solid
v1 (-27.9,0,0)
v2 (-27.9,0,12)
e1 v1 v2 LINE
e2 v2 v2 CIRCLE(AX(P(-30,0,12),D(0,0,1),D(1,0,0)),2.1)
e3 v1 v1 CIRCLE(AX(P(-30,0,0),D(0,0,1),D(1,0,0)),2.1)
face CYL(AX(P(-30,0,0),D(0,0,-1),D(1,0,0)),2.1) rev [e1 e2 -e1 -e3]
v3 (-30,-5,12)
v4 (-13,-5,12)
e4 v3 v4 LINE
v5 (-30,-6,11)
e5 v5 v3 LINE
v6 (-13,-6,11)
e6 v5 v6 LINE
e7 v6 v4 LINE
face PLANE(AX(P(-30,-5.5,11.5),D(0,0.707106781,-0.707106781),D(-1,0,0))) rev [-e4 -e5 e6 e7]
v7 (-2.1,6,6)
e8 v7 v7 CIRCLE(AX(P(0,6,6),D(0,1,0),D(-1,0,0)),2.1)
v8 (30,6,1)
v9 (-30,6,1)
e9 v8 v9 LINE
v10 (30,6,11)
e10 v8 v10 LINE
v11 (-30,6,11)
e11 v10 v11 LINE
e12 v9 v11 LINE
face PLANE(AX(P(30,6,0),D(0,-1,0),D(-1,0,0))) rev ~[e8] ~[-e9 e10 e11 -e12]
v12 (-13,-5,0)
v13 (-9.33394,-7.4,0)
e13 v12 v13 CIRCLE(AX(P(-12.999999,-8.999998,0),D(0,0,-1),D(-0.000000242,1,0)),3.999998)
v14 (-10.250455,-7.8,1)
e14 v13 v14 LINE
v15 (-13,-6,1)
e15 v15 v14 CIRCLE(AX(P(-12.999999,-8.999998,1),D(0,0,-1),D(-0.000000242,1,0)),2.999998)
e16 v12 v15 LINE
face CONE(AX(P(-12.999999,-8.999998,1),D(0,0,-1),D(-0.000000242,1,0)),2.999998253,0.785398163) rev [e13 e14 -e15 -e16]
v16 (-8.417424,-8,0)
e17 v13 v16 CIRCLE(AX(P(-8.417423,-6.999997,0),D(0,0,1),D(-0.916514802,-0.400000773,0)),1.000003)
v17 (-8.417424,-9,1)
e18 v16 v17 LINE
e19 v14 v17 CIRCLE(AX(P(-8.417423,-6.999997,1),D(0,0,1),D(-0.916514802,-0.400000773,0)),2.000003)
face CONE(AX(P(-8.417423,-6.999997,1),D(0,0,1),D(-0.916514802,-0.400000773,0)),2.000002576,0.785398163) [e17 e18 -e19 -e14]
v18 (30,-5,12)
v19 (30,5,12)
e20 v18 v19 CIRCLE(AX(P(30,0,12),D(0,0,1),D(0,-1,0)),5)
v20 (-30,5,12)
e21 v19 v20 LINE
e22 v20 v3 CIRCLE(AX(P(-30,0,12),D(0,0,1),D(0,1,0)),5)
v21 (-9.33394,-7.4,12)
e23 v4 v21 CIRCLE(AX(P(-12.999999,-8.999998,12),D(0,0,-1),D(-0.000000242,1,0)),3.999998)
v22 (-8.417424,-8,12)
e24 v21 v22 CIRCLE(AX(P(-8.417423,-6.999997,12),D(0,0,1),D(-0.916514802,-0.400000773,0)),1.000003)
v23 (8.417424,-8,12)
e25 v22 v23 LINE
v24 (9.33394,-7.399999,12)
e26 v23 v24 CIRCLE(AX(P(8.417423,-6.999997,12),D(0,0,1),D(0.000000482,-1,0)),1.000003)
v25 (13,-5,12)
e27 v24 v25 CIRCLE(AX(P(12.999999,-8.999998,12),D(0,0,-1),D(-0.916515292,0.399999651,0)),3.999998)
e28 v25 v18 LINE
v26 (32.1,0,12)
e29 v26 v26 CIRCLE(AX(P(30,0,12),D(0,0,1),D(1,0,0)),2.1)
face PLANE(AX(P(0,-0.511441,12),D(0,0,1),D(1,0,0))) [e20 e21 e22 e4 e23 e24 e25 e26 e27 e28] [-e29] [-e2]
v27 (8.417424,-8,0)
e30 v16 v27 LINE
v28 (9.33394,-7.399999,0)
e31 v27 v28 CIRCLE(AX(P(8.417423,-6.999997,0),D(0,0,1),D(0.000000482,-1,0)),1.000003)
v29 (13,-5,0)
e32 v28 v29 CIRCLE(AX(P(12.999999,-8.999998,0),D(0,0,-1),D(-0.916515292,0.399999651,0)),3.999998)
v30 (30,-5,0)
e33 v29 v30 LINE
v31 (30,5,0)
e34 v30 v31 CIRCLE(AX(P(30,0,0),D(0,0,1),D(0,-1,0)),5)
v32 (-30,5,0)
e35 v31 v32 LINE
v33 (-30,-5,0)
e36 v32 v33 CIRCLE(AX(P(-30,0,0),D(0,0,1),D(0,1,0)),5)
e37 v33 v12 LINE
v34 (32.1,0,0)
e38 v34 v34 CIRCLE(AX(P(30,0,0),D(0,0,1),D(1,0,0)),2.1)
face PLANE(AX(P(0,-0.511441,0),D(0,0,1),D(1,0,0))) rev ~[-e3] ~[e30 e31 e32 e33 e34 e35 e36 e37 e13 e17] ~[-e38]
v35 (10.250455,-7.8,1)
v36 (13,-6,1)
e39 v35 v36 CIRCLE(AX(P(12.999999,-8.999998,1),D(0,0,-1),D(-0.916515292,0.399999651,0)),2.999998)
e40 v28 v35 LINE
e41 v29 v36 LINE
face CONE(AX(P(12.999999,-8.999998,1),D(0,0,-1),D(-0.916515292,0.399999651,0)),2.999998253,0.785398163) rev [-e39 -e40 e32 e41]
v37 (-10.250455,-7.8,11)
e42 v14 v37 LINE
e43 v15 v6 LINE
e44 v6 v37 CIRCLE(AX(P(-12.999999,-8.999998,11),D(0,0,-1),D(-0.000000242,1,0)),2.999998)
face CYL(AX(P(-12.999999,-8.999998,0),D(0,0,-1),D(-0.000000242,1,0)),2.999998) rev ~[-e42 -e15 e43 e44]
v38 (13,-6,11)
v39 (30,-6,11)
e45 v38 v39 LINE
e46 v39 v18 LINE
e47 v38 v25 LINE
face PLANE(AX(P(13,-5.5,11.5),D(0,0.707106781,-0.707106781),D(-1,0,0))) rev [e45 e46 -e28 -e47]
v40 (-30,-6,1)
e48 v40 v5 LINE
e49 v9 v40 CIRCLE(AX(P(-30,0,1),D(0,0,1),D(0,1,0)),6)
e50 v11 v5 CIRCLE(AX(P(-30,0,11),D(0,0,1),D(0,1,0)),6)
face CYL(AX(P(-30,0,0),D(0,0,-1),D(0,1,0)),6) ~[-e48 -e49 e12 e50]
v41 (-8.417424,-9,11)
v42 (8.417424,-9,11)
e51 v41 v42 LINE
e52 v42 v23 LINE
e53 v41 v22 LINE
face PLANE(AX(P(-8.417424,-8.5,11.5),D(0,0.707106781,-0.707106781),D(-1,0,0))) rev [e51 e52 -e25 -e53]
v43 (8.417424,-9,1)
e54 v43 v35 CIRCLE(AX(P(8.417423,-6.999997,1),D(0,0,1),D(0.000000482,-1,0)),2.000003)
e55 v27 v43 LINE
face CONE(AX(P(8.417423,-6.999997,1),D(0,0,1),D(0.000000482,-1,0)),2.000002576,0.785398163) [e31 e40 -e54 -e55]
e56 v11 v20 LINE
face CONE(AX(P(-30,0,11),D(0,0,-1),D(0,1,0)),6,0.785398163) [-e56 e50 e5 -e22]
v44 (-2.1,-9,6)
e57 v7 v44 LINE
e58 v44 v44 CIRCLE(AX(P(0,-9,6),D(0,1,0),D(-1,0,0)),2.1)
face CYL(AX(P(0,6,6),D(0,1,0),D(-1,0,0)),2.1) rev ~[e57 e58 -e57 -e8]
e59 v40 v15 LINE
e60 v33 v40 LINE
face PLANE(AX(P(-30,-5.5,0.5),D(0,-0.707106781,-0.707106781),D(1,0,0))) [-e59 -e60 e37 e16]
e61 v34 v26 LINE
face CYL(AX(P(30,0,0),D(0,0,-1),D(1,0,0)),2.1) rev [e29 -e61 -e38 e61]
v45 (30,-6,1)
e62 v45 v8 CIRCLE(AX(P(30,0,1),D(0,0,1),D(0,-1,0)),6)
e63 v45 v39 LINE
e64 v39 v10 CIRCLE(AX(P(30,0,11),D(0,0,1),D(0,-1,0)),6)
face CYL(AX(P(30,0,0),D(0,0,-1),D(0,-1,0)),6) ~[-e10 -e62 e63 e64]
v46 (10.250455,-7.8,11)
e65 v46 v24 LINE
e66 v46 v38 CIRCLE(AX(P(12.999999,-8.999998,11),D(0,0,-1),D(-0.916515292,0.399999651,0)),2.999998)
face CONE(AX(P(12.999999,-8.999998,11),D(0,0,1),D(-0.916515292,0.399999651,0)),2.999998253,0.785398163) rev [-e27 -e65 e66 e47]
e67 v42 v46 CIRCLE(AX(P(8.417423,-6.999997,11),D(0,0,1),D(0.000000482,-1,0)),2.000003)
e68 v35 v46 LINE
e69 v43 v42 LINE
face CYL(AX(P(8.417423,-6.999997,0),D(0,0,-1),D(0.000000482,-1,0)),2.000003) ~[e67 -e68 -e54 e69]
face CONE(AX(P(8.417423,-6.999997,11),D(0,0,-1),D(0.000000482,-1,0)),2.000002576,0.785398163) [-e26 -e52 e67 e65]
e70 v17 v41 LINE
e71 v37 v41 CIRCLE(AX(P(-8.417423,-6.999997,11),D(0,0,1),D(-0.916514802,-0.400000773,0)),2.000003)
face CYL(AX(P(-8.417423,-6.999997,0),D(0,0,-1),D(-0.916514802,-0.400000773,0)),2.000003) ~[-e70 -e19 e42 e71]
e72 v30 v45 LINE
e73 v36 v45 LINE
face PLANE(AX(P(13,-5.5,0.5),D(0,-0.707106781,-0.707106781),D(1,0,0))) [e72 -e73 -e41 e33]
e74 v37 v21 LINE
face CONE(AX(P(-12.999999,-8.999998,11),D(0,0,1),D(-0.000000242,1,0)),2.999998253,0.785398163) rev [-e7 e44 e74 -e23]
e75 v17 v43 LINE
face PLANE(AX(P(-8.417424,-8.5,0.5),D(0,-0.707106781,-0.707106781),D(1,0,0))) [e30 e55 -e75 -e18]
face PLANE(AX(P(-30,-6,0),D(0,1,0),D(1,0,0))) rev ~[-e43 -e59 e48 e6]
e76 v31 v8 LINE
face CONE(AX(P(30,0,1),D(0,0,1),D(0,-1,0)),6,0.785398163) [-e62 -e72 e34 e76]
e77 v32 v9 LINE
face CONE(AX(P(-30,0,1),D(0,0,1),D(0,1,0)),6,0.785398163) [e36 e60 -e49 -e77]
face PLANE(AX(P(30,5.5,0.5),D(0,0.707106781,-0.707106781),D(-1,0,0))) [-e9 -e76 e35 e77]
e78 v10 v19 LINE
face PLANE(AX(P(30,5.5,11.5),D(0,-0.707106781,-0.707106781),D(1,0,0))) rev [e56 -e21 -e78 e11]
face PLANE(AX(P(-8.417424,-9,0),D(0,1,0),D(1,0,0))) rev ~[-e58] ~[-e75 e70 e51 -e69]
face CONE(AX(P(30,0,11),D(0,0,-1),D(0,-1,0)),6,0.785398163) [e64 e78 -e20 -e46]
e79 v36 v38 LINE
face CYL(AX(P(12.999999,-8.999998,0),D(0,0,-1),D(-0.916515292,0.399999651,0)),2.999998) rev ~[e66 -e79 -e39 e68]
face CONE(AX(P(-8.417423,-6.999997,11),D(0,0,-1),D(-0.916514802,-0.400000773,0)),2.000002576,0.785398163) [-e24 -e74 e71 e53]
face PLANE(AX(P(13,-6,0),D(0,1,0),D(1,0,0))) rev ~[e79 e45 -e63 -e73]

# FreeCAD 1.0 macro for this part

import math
import FreeCAD as App
import Part
import Sketcher
Q = App.Units.Quantity


def edges_at(feature, points):
    """Names of the edges that pass closest to the given points."""
    edges = feature.Shape.Edges
    near = lambda p: min(range(len(edges)), key=lambda i: edges[i].distToShape(Part.Vertex(*p))[0])
    return sorted({f"Edge{near(p) + 1}" for p in points})

doc = App.newDocument("Part")
body = doc.addObject("PartDesign::Body", "Body")

sketch1 = body.newObject("Sketcher::SketchObject", "Sketch")
sketch1.AttachmentSupport = (doc.getObject("XY_Plane"), [""])
sketch1.MapMode = "FlatFace"
sketch1.addGeometry([
    Part.LineSegment(App.Vector(-8.4, -9, 0), App.Vector(8.4, -9, 0)),
    Part.ArcOfCircle(Part.Circle(App.Vector(8.4, -7, 0), App.Vector(0, 0, 1), 2), math.radians(-90), math.radians(-24)),
    Part.ArcOfCircle(Part.Circle(App.Vector(13, -9, 0), App.Vector(0, 0, 1), 3), math.radians(90), math.radians(156)),
    Part.LineSegment(App.Vector(13, -6, 0), App.Vector(30, -6, 0)),
    Part.ArcOfCircle(Part.Circle(App.Vector(30, 0, 0), App.Vector(0, 0, 1), 6), math.radians(-90), math.radians(90)),
    Part.LineSegment(App.Vector(30, 6, 0), App.Vector(-30, 6, 0)),
    Part.ArcOfCircle(Part.Circle(App.Vector(-30, 0, 0), App.Vector(0, 0, 1), 6), math.radians(90), math.radians(270)),
    Part.LineSegment(App.Vector(-30, -6, 0), App.Vector(-13, -6, 0)),
    Part.ArcOfCircle(Part.Circle(App.Vector(-13, -9, 0), App.Vector(0, 0, 1), 3), math.radians(24), math.radians(90)),
    Part.ArcOfCircle(Part.Circle(App.Vector(-8.4, -7, 0), App.Vector(0, 0, 1), 2), math.radians(-156), math.radians(-90)),
    Part.Circle(App.Vector(-30, 0, 0), App.Vector(0, 0, 1), 2.1),
    Part.Circle(App.Vector(30, 0, 0), App.Vector(0, 0, 1), 2.1),
], False)
sketch1.addConstraint([
    Sketcher.Constraint("Tangent", 0, 2, 1, 1),
    Sketcher.Constraint("Tangent", 1, 2, 2, 2),
    Sketcher.Constraint("Tangent", 2, 1, 3, 1),
    Sketcher.Constraint("Tangent", 3, 2, 4, 1),
    Sketcher.Constraint("Tangent", 4, 2, 5, 1),
    Sketcher.Constraint("Tangent", 5, 2, 6, 1),
    Sketcher.Constraint("Tangent", 6, 2, 7, 1),
    Sketcher.Constraint("Tangent", 7, 2, 8, 2),
    Sketcher.Constraint("Tangent", 8, 1, 9, 1),
    Sketcher.Constraint("Tangent", 9, 2, 0, 1),
    Sketcher.Constraint("Horizontal", 0),
    Sketcher.Constraint("Horizontal", 3),
    Sketcher.Constraint("Horizontal", 5),
    Sketcher.Constraint("Horizontal", 7),
    Sketcher.Constraint("Coincident", 10, 3, 6, 3),
    Sketcher.Constraint("Coincident", 11, 3, 4, 3),
    Sketcher.Constraint("Equal", 4, 6),
    Sketcher.Constraint("Equal", 2, 8),
    Sketcher.Constraint("Equal", 1, 9),
    Sketcher.Constraint("Equal", 10, 11),
    Sketcher.Constraint("Symmetric", 4, 3, 6, 3, -1, 1),
    Sketcher.Constraint("Horizontal", 8, 3, 0, 2),
    Sketcher.Constraint("Equal", 3, 7),
    Sketcher.Constraint("Radius", 2, Q("2.999998 mm")),
    Sketcher.Constraint("Radius", 4, Q("6 mm")),
    Sketcher.Constraint("Diameter", 10, Q("4.2 mm")),
    Sketcher.Constraint("DistanceX", 3, 1, 3, 2, Q("17 mm")),
    Sketcher.Constraint("DistanceX", 5, 2, 5, 1, Q("60 mm")),
    Sketcher.Constraint("DistanceY", 2, 3, 1, 3, Q("2.000001 mm")),
])
pad1 = body.newObject("PartDesign::Pad", "Pad")
pad1.Profile = sketch1
pad1.Length = 12

sketch2 = body.newObject("Sketcher::SketchObject", "Sketch001")
sketch2.AttachmentSupport = (doc.getObject("XZ_Plane"), [""])
sketch2.MapMode = "FlatFace"
sketch2.AttachmentOffset = App.Placement(App.Vector(0, 0, -6), App.Rotation())
sketch2.addGeometry(Part.Circle(App.Vector(0, 6, 0), App.Vector(0, 0, 1), 2.1), False)
sketch2.addConstraint([
    Sketcher.Constraint("PointOnObject", 0, 3, -2),
    Sketcher.Constraint("Diameter", 0, Q("4.2 mm")),
    Sketcher.Constraint("DistanceY", -1, 1, 0, 3, Q("6 mm")),
])
pocket1 = body.newObject("PartDesign::Pocket", "Pocket")
pocket1.Profile = sketch2
pocket1.Type = "ThroughAll"
pocket1.Reversed = True
doc.recompute()

chamfer = body.newObject("PartDesign::Chamfer", "Chamfer")
chamfer.Base = (pocket1, edges_at(pocket1, [(0, -9, 12), (0, 6, 0)]))
chamfer.Size = 1

doc.recompute()
